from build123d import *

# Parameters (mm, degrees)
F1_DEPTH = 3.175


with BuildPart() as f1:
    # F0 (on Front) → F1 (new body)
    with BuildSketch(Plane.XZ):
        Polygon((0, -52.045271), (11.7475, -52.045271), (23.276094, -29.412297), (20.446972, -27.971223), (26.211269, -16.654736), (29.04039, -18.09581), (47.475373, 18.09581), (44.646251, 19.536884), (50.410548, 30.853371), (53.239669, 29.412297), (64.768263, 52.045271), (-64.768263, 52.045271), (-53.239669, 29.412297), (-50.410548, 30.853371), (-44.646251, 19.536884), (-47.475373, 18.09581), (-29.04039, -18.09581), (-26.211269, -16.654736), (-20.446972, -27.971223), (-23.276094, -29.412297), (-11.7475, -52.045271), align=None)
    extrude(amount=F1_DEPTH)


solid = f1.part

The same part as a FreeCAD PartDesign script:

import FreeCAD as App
import Part
import Sketcher
from FreeCAD import Vector
Q = App.Units.Quantity

doc = App.newDocument("Part")
body = doc.addObject("PartDesign::Body", "Body")

sketch1 = body.newObject("Sketcher::SketchObject", "Sketch")
sketch1.AttachmentSupport = (doc.getObject("XZ_Plane"), [""])
sketch1.MapMode = "FlatFace"
sketch1.addGeometry(Part.LineSegment(Vector(11.7, -52, 0), Vector(23.3, -29.4, 0)), False)
sketch1.addGeometry(Part.LineSegment(Vector(23.3, -29.4, 0), Vector(20.4, -28, 0)), False)
sketch1.addGeometry(Part.LineSegment(Vector(20.4, -28, 0), Vector(26.2, -16.7, 0)), False)
sketch1.addGeometry(Part.LineSegment(Vector(26.2, -16.7, 0), Vector(29, -18.1, 0)), False)
sketch1.addGeometry(Part.LineSegment(Vector(29, -18.1, 0), Vector(47.5, 18.1, 0)), False)
sketch1.addGeometry(Part.LineSegment(Vector(47.5, 18.1, 0), Vector(44.6, 19.5, 0)), False)
sketch1.addGeometry(Part.LineSegment(Vector(44.6, 19.5, 0), Vector(50.4, 30.9, 0)), False)
sketch1.addGeometry(Part.LineSegment(Vector(50.4, 30.9, 0), Vector(53.2, 29.4, 0)), False)
sketch1.addGeometry(Part.LineSegment(Vector(53.2, 29.4, 0), Vector(64.8, 52, 0)), False)
sketch1.addGeometry(Part.LineSegment(Vector(64.8, 52, 0), Vector(-64.8, 52, 0)), False)
sketch1.addGeometry(Part.LineSegment(Vector(-64.8, 52, 0), Vector(-53.2, 29.4, 0)), False)
sketch1.addGeometry(Part.LineSegment(Vector(-53.2, 29.4, 0), Vector(-50.4, 30.9, 0)), False)
sketch1.addGeometry(Part.LineSegment(Vector(-50.4, 30.9, 0), Vector(-44.6, 19.5, 0)), False)
sketch1.addGeometry(Part.LineSegment(Vector(-44.6, 19.5, 0), Vector(-47.5, 18.1, 0)), False)
sketch1.addGeometry(Part.LineSegment(Vector(-47.5, 18.1, 0), Vector(-29, -18.1, 0)), False)
sketch1.addGeometry(Part.LineSegment(Vector(-29, -18.1, 0), Vector(-26.2, -16.7, 0)), False)
sketch1.addGeometry(Part.LineSegment(Vector(-26.2, -16.7, 0), Vector(-20.4, -28, 0)), False)
sketch1.addGeometry(Part.LineSegment(Vector(-20.4, -28, 0), Vector(-23.3, -29.4, 0)), False)
sketch1.addGeometry(Part.LineSegment(Vector(-23.3, -29.4, 0), Vector(-11.7, -52, 0)), False)
sketch1.addGeometry(Part.LineSegment(Vector(-11.7, -52, 0), Vector(11.7, -52, 0)), False)
sketch1.addConstraint(Sketcher.Constraint("Coincident", 0, 2, 1, 1))
sketch1.addConstraint(Sketcher.Constraint("Coincident", 1, 2, 2, 1))
sketch1.addConstraint(Sketcher.Constraint("Coincident", 2, 2, 3, 1))
sketch1.addConstraint(Sketcher.Constraint("Coincident", 3, 2, 4, 1))
sketch1.addConstraint(Sketcher.Constraint("Coincident", 4, 2, 5, 1))
sketch1.addConstraint(Sketcher.Constraint("Coincident", 5, 2, 6, 1))
sketch1.addConstraint(Sketcher.Constraint("Coincident", 6, 2, 7, 1))
sketch1.addConstraint(Sketcher.Constraint("Coincident", 7, 2, 8, 1))
sketch1.addConstraint(Sketcher.Constraint("Coincident", 8, 2, 9, 1))
sketch1.addConstraint(Sketcher.Constraint("Coincident", 9, 2, 10, 1))
sketch1.addConstraint(Sketcher.Constraint("Coincident", 10, 2, 11, 1))
sketch1.addConstraint(Sketcher.Constraint("Coincident", 11, 2, 12, 1))
sketch1.addConstraint(Sketcher.Constraint("Coincident", 12, 2, 13, 1))
sketch1.addConstraint(Sketcher.Constraint("Coincident", 13, 2, 14, 1))
sketch1.addConstraint(Sketcher.Constraint("Coincident", 14, 2, 15, 1))
sketch1.addConstraint(Sketcher.Constraint("Coincident", 15, 2, 16, 1))
sketch1.addConstraint(Sketcher.Constraint("Coincident", 16, 2, 17, 1))
sketch1.addConstraint(Sketcher.Constraint("Coincident", 17, 2, 18, 1))
sketch1.addConstraint(Sketcher.Constraint("Coincident", 18, 2, 19, 1))
sketch1.addConstraint(Sketcher.Constraint("Coincident", 19, 2, 0, 1))
sketch1.addConstraint(Sketcher.Constraint("Horizontal", 9))
sketch1.addConstraint(Sketcher.Constraint("Horizontal", 19))
sketch1.addConstraint(Sketcher.Constraint("Symmetric", 7, 2, 10, 2, -2))
sketch1.addConstraint(Sketcher.Constraint("Symmetric", 6, 2, 11, 2, -2))
sketch1.addConstraint(Sketcher.Constraint("Symmetric", 5, 2, 12, 2, -2))
sketch1.addConstraint(Sketcher.Constraint("Symmetric", 4, 2, 13, 2, -2))
sketch1.addConstraint(Sketcher.Constraint("Symmetric", 3, 2, 14, 2, -2))
sketch1.addConstraint(Sketcher.Constraint("Symmetric", 2, 2, 15, 2, -2))
sketch1.addConstraint(Sketcher.Constraint("Symmetric", 1, 2, 16, 2, -2))
sketch1.addConstraint(Sketcher.Constraint("Symmetric", 0, 2, 17, 2, -2))
sketch1.addConstraint(Sketcher.Constraint("Perpendicular", 0, 1))
sketch1.addConstraint(Sketcher.Constraint("Perpendicular", 1, 2))
sketch1.addConstraint(Sketcher.Constraint("Perpendicular", 2, 3))
sketch1.addConstraint(Sketcher.Constraint("Perpendicular", 3, 4))
sketch1.addConstraint(Sketcher.Constraint("Perpendicular", 4, 5))
sketch1.addConstraint(Sketcher.Constraint("Perpendicular", 5, 6))
sketch1.addConstraint(Sketcher.Constraint("Perpendicular", 6, 7))
sketch1.addConstraint(Sketcher.Constraint("Perpendicular", 7, 8))
sketch1.addConstraint(Sketcher.Constraint("Perpendicular", 10, 11))
sketch1.addConstraint(Sketcher.Constraint("Perpendicular", 17, 18))
sketch1.addConstraint(Sketcher.Constraint("Equal", 1, 3))
sketch1.addConstraint(Sketcher.Constraint("Equal", 3, 5))
sketch1.addConstraint(Sketcher.Constraint("Equal", 2, 6))
sketch1.addConstraint(Sketcher.Constraint("Equal", 5, 7))
sketch1.addConstraint(Sketcher.Constraint("Equal", 0, 8))
sketch1.addConstraint(Sketcher.Constraint("Distance", 0, Q("1 in")))
sketch1.addConstraint(Sketcher.Constraint("Distance", 2, Q("0.5 in")))
sketch1.addConstraint(Sketcher.Constraint("DistanceX", 19, 1, 19, 2, Q("0.925 in")))
sketch1.addConstraint(Sketcher.Constraint("Distance", 1, Q("0.125 in")))
sketch1.addConstraint(Sketcher.Constraint("DistanceX", 1, 2, 4, 2, 27.028401))
sketch1.addConstraint(Sketcher.Constraint("DistanceY", 6, 2, 8, 2, 21.1919))
sketch1.addConstraint(Sketcher.Constraint("DistanceY", 3, 2, -1, 1, 18.09581))
pad1 = body.newObject("PartDesign::Pad", "Pad")
pad1.Profile = sketch1
pad1.Length = Q("0.125 in")

doc.recompute()
